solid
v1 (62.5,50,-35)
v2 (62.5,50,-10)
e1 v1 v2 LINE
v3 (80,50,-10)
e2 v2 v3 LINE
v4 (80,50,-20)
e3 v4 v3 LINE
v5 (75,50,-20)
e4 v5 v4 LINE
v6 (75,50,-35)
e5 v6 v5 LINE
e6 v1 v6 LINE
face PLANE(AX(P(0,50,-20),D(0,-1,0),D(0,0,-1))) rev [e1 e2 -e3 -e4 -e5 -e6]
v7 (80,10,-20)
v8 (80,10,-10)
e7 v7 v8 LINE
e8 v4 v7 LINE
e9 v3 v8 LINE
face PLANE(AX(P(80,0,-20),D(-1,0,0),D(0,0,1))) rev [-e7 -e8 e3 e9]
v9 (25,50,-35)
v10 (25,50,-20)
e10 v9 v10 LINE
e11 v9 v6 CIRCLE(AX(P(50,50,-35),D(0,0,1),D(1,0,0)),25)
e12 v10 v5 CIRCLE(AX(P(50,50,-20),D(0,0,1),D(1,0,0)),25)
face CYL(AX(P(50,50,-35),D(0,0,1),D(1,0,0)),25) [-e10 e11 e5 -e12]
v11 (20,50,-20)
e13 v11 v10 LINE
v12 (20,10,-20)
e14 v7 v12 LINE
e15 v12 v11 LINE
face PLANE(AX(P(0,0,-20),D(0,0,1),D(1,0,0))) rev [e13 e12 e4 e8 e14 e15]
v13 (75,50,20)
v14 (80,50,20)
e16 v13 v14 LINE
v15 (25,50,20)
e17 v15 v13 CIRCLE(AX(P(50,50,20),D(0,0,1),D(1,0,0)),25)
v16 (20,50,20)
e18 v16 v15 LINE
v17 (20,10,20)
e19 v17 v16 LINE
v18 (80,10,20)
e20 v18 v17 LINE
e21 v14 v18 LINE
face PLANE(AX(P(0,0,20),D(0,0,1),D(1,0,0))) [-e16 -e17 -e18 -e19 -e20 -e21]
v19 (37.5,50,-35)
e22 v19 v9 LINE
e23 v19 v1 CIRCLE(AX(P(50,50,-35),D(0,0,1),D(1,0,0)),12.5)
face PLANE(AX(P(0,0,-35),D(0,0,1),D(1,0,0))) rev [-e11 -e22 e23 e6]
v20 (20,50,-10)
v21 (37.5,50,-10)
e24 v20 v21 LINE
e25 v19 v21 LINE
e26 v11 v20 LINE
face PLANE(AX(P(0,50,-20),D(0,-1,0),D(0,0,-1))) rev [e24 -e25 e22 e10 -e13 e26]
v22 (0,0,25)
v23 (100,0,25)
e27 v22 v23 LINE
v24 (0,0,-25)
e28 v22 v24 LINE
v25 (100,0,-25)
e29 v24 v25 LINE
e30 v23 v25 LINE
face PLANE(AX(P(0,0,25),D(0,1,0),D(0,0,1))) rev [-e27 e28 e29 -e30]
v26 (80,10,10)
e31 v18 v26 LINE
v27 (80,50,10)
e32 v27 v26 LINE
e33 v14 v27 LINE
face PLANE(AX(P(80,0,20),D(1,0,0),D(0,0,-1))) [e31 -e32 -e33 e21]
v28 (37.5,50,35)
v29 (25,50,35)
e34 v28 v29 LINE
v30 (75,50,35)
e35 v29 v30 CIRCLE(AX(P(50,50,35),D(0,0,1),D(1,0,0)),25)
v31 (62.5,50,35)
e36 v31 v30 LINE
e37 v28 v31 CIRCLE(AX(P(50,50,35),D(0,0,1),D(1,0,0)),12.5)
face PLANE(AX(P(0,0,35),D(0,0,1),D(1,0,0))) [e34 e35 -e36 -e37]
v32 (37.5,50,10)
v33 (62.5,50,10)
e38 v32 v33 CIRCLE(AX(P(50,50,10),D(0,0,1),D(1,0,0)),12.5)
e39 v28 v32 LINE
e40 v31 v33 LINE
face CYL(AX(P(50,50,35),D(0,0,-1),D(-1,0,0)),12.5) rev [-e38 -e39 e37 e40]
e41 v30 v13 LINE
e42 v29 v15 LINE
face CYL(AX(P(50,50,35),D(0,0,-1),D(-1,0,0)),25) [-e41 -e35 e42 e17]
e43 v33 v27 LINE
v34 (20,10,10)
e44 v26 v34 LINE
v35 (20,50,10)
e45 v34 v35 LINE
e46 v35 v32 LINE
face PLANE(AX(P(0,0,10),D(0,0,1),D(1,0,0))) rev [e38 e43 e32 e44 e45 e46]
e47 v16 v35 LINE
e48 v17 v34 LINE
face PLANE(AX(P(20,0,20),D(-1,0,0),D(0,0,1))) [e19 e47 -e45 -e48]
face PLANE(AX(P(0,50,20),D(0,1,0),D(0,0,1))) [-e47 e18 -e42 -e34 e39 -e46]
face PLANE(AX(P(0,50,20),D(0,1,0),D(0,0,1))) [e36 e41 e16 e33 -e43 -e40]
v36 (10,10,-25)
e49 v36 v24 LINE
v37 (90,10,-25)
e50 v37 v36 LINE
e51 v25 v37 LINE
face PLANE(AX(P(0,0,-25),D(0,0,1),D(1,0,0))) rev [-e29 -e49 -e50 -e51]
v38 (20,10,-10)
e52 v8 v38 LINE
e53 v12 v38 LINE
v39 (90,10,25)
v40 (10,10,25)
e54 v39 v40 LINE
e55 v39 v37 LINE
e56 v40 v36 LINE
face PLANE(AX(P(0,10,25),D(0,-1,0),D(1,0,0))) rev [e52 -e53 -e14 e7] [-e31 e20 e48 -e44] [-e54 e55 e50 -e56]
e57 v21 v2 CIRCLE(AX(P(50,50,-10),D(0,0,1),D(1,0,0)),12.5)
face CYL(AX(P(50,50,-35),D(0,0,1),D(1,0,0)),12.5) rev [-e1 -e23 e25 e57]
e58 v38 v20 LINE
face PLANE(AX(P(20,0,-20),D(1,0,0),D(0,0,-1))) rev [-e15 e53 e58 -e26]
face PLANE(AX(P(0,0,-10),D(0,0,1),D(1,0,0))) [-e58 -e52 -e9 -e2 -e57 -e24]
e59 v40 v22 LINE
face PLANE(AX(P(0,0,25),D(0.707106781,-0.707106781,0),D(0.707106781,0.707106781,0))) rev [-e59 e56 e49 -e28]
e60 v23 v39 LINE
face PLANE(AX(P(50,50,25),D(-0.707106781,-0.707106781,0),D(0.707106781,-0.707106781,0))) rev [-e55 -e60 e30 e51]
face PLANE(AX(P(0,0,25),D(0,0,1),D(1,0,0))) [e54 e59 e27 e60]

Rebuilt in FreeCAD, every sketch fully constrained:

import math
import FreeCAD as App
import Part
import Sketcher
from FreeCAD import Vector


def add_polygon(sketch, points):
    """Adds a closed chain of lines whose ends are joined by coincident constraints."""
    first, n = sketch.GeometryCount, len(points)
    for a, b in zip(points, points[1:] + points[:1]):
        sketch.addGeometry(Part.LineSegment(App.Vector(*a, 0), App.Vector(*b, 0)), False)
    for i in range(n):
        sketch.addConstraint(Sketcher.Constraint("Coincident", first + i, 2, first + (i + 1) % n, 1))

doc = App.newDocument("Part")
body = doc.addObject("PartDesign::Body", "Body")

sketch1 = doc.addObject("Sketcher::SketchObject", "Sketch")
body.addObject(sketch1)
sketch1.AttachmentSupport = (doc.XY_Plane, [""])
sketch1.MapMode = "FlatFace"
add_polygon(sketch1, [(100, 0), (90, 10), (10, 10), (0, 0)])
sketch1.addConstraint([
    Sketcher.Constraint("Horizontal", 1),
    Sketcher.Constraint("Horizontal", 3),
    Sketcher.Constraint("Coincident", 2, 2, -1, 1),
    Sketcher.Constraint("Perpendicular", 0, 2),
    Sketcher.Constraint("Equal", 0, 2),
    Sketcher.Constraint("DistanceX", 1, 2, 1, 1, 80.0),
    Sketcher.Constraint("DistanceX", 3, 1, 3, 2, 100.0),
])
pad1 = doc.addObject("PartDesign::Pad", "Pad")
body.addObject(pad1)
pad1.Profile = sketch1
pad1.Length = 50
pad1.Midplane = True

sketch2 = doc.addObject("Sketcher::SketchObject", "Sketch001")
body.addObject(sketch2)
sketch2.AttachmentSupport = (doc.XY_Plane, [""])
sketch2.MapMode = "FlatFace"
sketch2.AttachmentOffset = App.Placement(Vector(0, 0, 10), App.Rotation())
sketch2.addGeometry([
    Part.LineSegment(Vector(80, 10, 0), Vector(80, 50, 0)),
    Part.LineSegment(Vector(80, 50, 0), Vector(75, 50, 0)),
    Part.ArcOfCircle(Part.Circle(Vector(50, 50, 0), Vector(0, 0, 1), 25), math.radians(-90), math.radians(0)),
    Part.ArcOfCircle(Part.Circle(Vector(50, 50, 0), Vector(0, 0, 1), 25), math.radians(180), math.radians(270)),
    Part.LineSegment(Vector(25, 50, 0), Vector(20, 50, 0)),
    Part.LineSegment(Vector(20, 50, 0), Vector(20, 10, 0)),
    Part.LineSegment(Vector(20, 10, 0), Vector(80, 10, 0)),
], False)
sketch2.addConstraint([
    Sketcher.Constraint("Coincident", 0, 2, 1, 1),
    Sketcher.Constraint("Coincident", 1, 2, 2, 2),
    Sketcher.Constraint("Tangent", 2, 1, 3, 2),
    Sketcher.Constraint("Coincident", 3, 1, 4, 1),
    Sketcher.Constraint("Coincident", 4, 2, 5, 1),
    Sketcher.Constraint("Coincident", 5, 2, 6, 1),
    Sketcher.Constraint("Coincident", 6, 2, 0, 1),
    Sketcher.Constraint("Vertical", 0),
    Sketcher.Constraint("Horizontal", 1),
    Sketcher.Constraint("Horizontal", 4),
    Sketcher.Constraint("Vertical", 5),
    Sketcher.Constraint("Horizontal", 6),
    Sketcher.Constraint("Equal", 2, 3),
    Sketcher.Constraint("Horizontal", 3, 3, 0, 2),
    Sketcher.Constraint("Horizontal", 1, 2, 3, 1),
    Sketcher.Constraint("Vertical", 3, 3, 2, 1),
    Sketcher.Constraint("Equal", 1, 4),
    Sketcher.Constraint("Radius", 2, 25.0),
    Sketcher.Constraint("DistanceX", 1, 2, 1, 1, 5.0),
    Sketcher.Constraint("DistanceY", 0, 1, 0, 2, 40.0),
    Sketcher.Constraint("DistanceX", -1, 1, 2, 3, 50.0),
    Sketcher.Constraint("DistanceY", -1, 1, 2, 3, 50.0),
])
pad2 = doc.addObject("PartDesign::Pad", "Pad001")
body.addObject(pad2)
pad2.Profile = sketch2
pad2.Length = 10

sketch3 = doc.addObject("Sketcher::SketchObject", "Sketch002")
body.addObject(sketch3)
sketch3.AttachmentSupport = (doc.XY_Plane, [""])
sketch3.MapMode = "FlatFace"
sketch3.AttachmentOffset = App.Placement(Vector(0, 0, -20), App.Rotation())
sketch3.addGeometry([
    Part.LineSegment(Vector(80, 10, 0), Vector(80, 50, 0)),
    Part.LineSegment(Vector(80, 50, 0), Vector(75, 50, 0)),
    Part.ArcOfCircle(Part.Circle(Vector(50, 50, 0), Vector(0, 0, 1), 25), math.radians(-90), math.radians(0)),
    Part.ArcOfCircle(Part.Circle(Vector(50, 50, 0), Vector(0, 0, 1), 25), math.radians(180), math.radians(270)),
    Part.LineSegment(Vector(25, 50, 0), Vector(20, 50, 0)),
    Part.LineSegment(Vector(20, 50, 0), Vector(20, 10, 0)),
    Part.LineSegment(Vector(20, 10, 0), Vector(80, 10, 0)),
], False)
sketch3.addConstraint([
    Sketcher.Constraint("Coincident", 0, 2, 1, 1),
    Sketcher.Constraint("Coincident", 1, 2, 2, 2),
    Sketcher.Constraint("Tangent", 2, 1, 3, 2),
    Sketcher.Constraint("Coincident", 3, 1, 4, 1),
    Sketcher.Constraint("Coincident", 4, 2, 5, 1),
    Sketcher.Constraint("Coincident", 5, 2, 6, 1),
    Sketcher.Constraint("Coincident", 6, 2, 0, 1),
    Sketcher.Constraint("Vertical", 0),
    Sketcher.Constraint("Horizontal", 1),
    Sketcher.Constraint("Horizontal", 4),
    Sketcher.Constraint("Vertical", 5),
    Sketcher.Constraint("Horizontal", 6),
    Sketcher.Constraint("Equal", 2, 3),
    Sketcher.Constraint("Horizontal", 3, 3, 0, 2),
    Sketcher.Constraint("Horizontal", 1, 2, 3, 1),
    Sketcher.Constraint("Vertical", 3, 3, 2, 1),
    Sketcher.Constraint("Equal", 1, 4),
    Sketcher.Constraint("Radius", 2, 25.0),
    Sketcher.Constraint("DistanceX", 1, 2, 1, 1, 5.0),
    Sketcher.Constraint("DistanceY", 0, 1, 0, 2, 40.0),
    Sketcher.Constraint("DistanceX", -1, 1, 2, 3, 50.0),
    Sketcher.Constraint("DistanceY", -1, 1, 2, 3, 50.0),
])
pad3 = doc.addObject("PartDesign::Pad", "Pad002")
body.addObject(pad3)
pad3.Profile = sketch3
pad3.Length = 10

sketch4 = doc.addObject("Sketcher::SketchObject", "Sketch003")
body.addObject(sketch4)
sketch4.AttachmentSupport = (doc.XY_Plane, [""])
sketch4.MapMode = "FlatFace"
sketch4.AttachmentOffset = App.Placement(Vector(0, 0, -35), App.Rotation())
sketch4.addGeometry([
    Part.LineSegment(Vector(38, 50, 0), Vector(25, 50, 0)),
    Part.ArcOfCircle(Part.Circle(Vector(50, 50, 0), Vector(0, 0, 1), 25), math.radians(180), math.radians(360)),
    Part.LineSegment(Vector(75, 50, 0), Vector(62, 50, 0)),
    Part.ArcOfCircle(Part.Circle(Vector(50, 50, 0), Vector(0, 0, 1), 12), math.radians(180), math.radians(360)),
], False)
sketch4.addConstraint([
    Sketcher.Constraint("Coincident", 0, 2, 1, 1),
    Sketcher.Constraint("Coincident", 1, 2, 2, 1),
    Sketcher.Constraint("Coincident", 2, 2, 3, 2),
    Sketcher.Constraint("Coincident", 3, 1, 0, 1),
    Sketcher.Constraint("Horizontal", 0),
    Sketcher.Constraint("Horizontal", 2),
    Sketcher.Constraint("Coincident", 3, 3, 1, 3),
    Sketcher.Constraint("Horizontal", 3, 3, 0, 2),
    Sketcher.Constraint("Horizontal", 0, 2, 1, 2),
    Sketcher.Constraint("Radius", 1, 25.0),
    Sketcher.Constraint("Radius", 3, 12.5),
    Sketcher.Constraint("DistanceX", -1, 1, 1, 3, 50.0),
    Sketcher.Constraint("DistanceY", -1, 1, 1, 3, 50.0),
])
pad4 = doc.addObject("PartDesign::Pad", "Pad003")
body.addObject(pad4)
pad4.Profile = sketch4
pad4.Length = 25

sketch5 = doc.addObject("Sketcher::SketchObject", "Sketch004")
body.addObject(sketch5)
sketch5.AttachmentSupport = (doc.XY_Plane, [""])
sketch5.MapMode = "FlatFace"
sketch5.AttachmentOffset = App.Placement(Vector(0, 0, 10), App.Rotation())
sketch5.addGeometry([
    Part.LineSegment(Vector(38, 50, 0), Vector(25, 50, 0)),
    Part.ArcOfCircle(Part.Circle(Vector(50, 50, 0), Vector(0, 0, 1), 25), math.radians(180), math.radians(360)),
    Part.LineSegment(Vector(75, 50, 0), Vector(62, 50, 0)),
    Part.ArcOfCircle(Part.Circle(Vector(50, 50, 0), Vector(0, 0, 1), 12), math.radians(180), math.radians(360)),
], False)
sketch5.addConstraint([
    Sketcher.Constraint("Coincident", 0, 2, 1, 1),
    Sketcher.Constraint("Coincident", 1, 2, 2, 1),
    Sketcher.Constraint("Coincident", 2, 2, 3, 2),
    Sketcher.Constraint("Coincident", 3, 1, 0, 1),
    Sketcher.Constraint("Horizontal", 0),
    Sketcher.Constraint("Horizontal", 2),
    Sketcher.Constraint("Coincident", 3, 3, 1, 3),
    Sketcher.Constraint("Horizontal", 3, 3, 0, 2),
    Sketcher.Constraint("Horizontal", 0, 2, 1, 2),
    Sketcher.Constraint("Radius", 1, 25.0),
    Sketcher.Constraint("Radius", 3, 12.5),
    Sketcher.Constraint("DistanceX", -1, 1, 1, 3, 50.0),
    Sketcher.Constraint("DistanceY", -1, 1, 1, 3, 50.0),
])
pad5 = doc.addObject("PartDesign::Pad", "Pad004")
body.addObject(pad5)
pad5.Profile = sketch5
pad5.Length = 25

doc.recompute()
